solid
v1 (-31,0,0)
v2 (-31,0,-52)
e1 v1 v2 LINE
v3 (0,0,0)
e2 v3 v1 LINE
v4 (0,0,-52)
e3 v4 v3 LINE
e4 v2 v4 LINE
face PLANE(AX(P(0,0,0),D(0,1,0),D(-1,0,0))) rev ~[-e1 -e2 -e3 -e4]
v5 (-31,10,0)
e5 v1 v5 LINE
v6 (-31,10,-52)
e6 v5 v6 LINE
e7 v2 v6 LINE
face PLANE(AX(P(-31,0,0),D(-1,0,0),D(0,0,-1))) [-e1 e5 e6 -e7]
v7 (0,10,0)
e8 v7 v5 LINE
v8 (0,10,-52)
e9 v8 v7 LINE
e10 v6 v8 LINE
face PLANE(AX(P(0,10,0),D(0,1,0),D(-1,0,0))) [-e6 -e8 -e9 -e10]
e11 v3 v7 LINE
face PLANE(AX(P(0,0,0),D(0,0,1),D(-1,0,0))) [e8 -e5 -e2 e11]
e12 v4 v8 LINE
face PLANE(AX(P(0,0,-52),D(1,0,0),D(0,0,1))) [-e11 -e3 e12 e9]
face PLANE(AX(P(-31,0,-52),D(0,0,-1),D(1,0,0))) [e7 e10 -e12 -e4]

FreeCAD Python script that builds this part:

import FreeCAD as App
import Part
import Sketcher
from FreeCAD import Vector
Q = App.Units.Quantity

doc = App.newDocument("Part")
body = doc.addObject("PartDesign::Body", "Body")

# Sketch on XZ plane
sketch1 = body.newObject("Sketcher::SketchObject", "Sketch")
sketch1.AttachmentSupport = (doc.getObject("XZ_Plane"), [""])
sketch1.MapMode = "FlatFace"
sketch1.addGeometry([
    Part.LineSegment(Vector(-31, 0, 0), Vector(0, 0, 0)),
    Part.LineSegment(Vector(0, 0, 0), Vector(0, -52, 0)),
    Part.LineSegment(Vector(0, -52, 0), Vector(-31, -52, 0)),
    Part.LineSegment(Vector(-31, -52, 0), Vector(-31, 0, 0)),
], False)
sketch1.addConstraint([
    Sketcher.Constraint("Coincident", 0, 2, 1, 1),
    Sketcher.Constraint("Coincident", 1, 2, 2, 1),
    Sketcher.Constraint("Coincident", 2, 2, 3, 1),
    Sketcher.Constraint("Coincident", 3, 2, 0, 1),
    Sketcher.Constraint("Horizontal", 0),
    Sketcher.Constraint("Vertical", 1),
    Sketcher.Constraint("Horizontal", 2),
    Sketcher.Constraint("Vertical", 3),
    Sketcher.Constraint("Coincident", 0, 2, -1, 1),
    Sketcher.Constraint("DistanceX", 0, 1, 0, 2, Q("31 mm")),
    Sketcher.Constraint("DistanceY", 1, 2, 1, 1, Q("52 mm")),
])
pad1 = body.newObject("PartDesign::Pad", "Pad")
pad1.Profile = sketch1
pad1.Length = 10
pad1.Reversed = True

doc.recompute()
